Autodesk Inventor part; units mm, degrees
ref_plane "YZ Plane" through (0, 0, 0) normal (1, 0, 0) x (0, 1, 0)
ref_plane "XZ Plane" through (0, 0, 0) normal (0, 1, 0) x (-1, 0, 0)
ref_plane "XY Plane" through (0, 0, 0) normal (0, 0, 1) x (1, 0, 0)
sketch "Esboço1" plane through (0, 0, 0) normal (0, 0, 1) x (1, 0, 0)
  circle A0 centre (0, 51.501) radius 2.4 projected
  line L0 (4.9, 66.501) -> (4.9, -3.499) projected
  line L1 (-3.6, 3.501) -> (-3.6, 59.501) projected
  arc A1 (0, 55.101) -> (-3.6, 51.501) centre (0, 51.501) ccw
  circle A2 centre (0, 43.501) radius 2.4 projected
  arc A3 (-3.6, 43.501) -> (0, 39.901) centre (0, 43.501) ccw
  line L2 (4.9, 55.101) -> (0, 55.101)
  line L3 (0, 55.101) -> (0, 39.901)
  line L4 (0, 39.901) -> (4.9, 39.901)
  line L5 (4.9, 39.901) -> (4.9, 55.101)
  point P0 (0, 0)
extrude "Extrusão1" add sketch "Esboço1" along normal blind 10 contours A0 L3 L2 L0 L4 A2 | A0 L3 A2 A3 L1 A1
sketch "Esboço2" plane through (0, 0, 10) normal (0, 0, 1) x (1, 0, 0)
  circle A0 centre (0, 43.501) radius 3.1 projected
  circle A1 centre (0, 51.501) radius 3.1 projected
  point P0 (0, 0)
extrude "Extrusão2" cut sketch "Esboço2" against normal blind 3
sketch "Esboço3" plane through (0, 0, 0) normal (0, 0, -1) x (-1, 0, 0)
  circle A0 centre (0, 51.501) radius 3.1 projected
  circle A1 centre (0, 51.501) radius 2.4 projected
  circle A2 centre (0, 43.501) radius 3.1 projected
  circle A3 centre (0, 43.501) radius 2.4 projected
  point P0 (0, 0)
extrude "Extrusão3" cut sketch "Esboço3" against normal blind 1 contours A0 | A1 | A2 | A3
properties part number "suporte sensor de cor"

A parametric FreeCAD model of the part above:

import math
import FreeCAD as App
import Part
import Sketcher
Q = App.Units.Quantity

doc = App.newDocument("Part")
params = doc.addObject("Spreadsheet::Sheet", "Params")
for row, (alias, value) in enumerate([
    ("sketch1_diameter", "4.8 mm"),
    ("sketch1_radius", "3.6 mm"),
    ("sketch1_height", "8 mm"),
    ("sketch1_width", "4.9 mm"),
    ("pad1_length", "10 mm"),
    ("sketch2_diameter", "6.2 mm"),
    ("pocket1_length", "3 mm"),
    ("sketch3_diameter", "6.2 mm"),
    ("pocket2_length", "1 mm"),
], start=1):
    params.set(f"A{row}", alias)
    params.set(f"B{row}", "=" + value)
    params.setAlias(f"B{row}", alias)

body = doc.addObject("PartDesign::Body", "Body")

# Sketch on XY plane
sketch1 = doc.addObject("Sketcher::SketchObject", "Sketch")
body.addObject(sketch1)
sketch1.AttachmentSupport = (doc.XY_Plane, [""])
sketch1.MapMode = "FlatFace"
sketch1.addGeometry(Part.LineSegment(App.Vector(4.9, 55.1, 0), App.Vector(0, 55.1, 0)), False)
sketch1.addGeometry(Part.ArcOfCircle(Part.Circle(App.Vector(0, 51.5, 0), App.Vector(0, 0, 1), 3.6), math.radians(90), math.radians(180)), False)
sketch1.addGeometry(Part.LineSegment(App.Vector(-3.6, 51.5, 0), App.Vector(-3.6, 43.5, 0)), False)
sketch1.addGeometry(Part.ArcOfCircle(Part.Circle(App.Vector(0, 43.5, 0), App.Vector(0, 0, 1), 3.6), math.radians(180), math.radians(270)), False)
sketch1.addGeometry(Part.LineSegment(App.Vector(0, 39.9, 0), App.Vector(4.9, 39.9, 0)), False)
sketch1.addGeometry(Part.LineSegment(App.Vector(4.9, 39.9, 0), App.Vector(4.9, 55.1, 0)), False)
sketch1.addGeometry(Part.Circle(App.Vector(0, 51.5, 0), App.Vector(0, 0, 1), 2.4), False)
sketch1.addGeometry(Part.Circle(App.Vector(0, 43.5, 0), App.Vector(0, 0, 1), 2.4), False)
sketch1.addConstraint(Sketcher.Constraint("Tangent", 0, 2, 1, 1))
sketch1.addConstraint(Sketcher.Constraint("Tangent", 1, 2, 2, 1))
sketch1.addConstraint(Sketcher.Constraint("Tangent", 2, 2, 3, 1))
sketch1.addConstraint(Sketcher.Constraint("Tangent", 3, 2, 4, 1))
sketch1.addConstraint(Sketcher.Constraint("Coincident", 4, 2, 5, 1))
sketch1.addConstraint(Sketcher.Constraint("Coincident", 5, 2, 0, 1))
sketch1.addConstraint(Sketcher.Constraint("Horizontal", 0))
sketch1.addConstraint(Sketcher.Constraint("Vertical", 2))
sketch1.addConstraint(Sketcher.Constraint("Horizontal", 4))
sketch1.addConstraint(Sketcher.Constraint("Vertical", 5))
sketch1.addConstraint(Sketcher.Constraint("Coincident", 6, 3, 1, 3))
sketch1.addConstraint(Sketcher.Constraint("Coincident", 7, 3, 3, 3))
sketch1.addConstraint(Sketcher.Constraint("Equal", 1, 3))
sketch1.addConstraint(Sketcher.Constraint("Equal", 6, 7))
sketch1.addConstraint(Sketcher.Constraint("PointOnObject", 1, 3, -2))
sketch1.addConstraint(Sketcher.Constraint("Diameter", 6, Q("4.8 mm")))
sketch1.addConstraint(Sketcher.Constraint("Radius", 1, Q("3.6 mm")))
sketch1.addConstraint(Sketcher.Constraint("DistanceY", 2, 2, 2, 1, Q("8 mm")))
sketch1.addConstraint(Sketcher.Constraint("DistanceX", 0, 2, 0, 1, Q("4.9 mm")))
sketch1.addConstraint(Sketcher.Constraint("DistanceY", -1, 1, 1, 3, Q("51.501 mm")))
sketch1.setExpression("Constraints[15]", "Params.sketch1_diameter")
sketch1.setExpression("Constraints[16]", "Params.sketch1_radius")
sketch1.setExpression("Constraints[17]", "Params.sketch1_height")
sketch1.setExpression("Constraints[18]", "Params.sketch1_width")
pad1 = doc.addObject("PartDesign::Pad", "Pad")
body.addObject(pad1)
pad1.Profile = sketch1
pad1.setExpression("Length", "Params.pad1_length")

# Sketch on XY plane
sketch2 = doc.addObject("Sketcher::SketchObject", "Sketch001")
body.addObject(sketch2)
sketch2.AttachmentSupport = (doc.XY_Plane, [""])
sketch2.MapMode = "FlatFace"
sketch2.AttachmentOffset = App.Placement(App.Vector(0, 0, 10), App.Rotation())
sketch2.addGeometry(Part.Circle(App.Vector(0, 43.5, 0), App.Vector(0, 0, 1), 3.1), False)
sketch2.addGeometry(Part.Circle(App.Vector(0, 51.5, 0), App.Vector(0, 0, 1), 3.1), False)
sketch2.addConstraint(Sketcher.Constraint("Equal", 0, 1))
sketch2.addConstraint(Sketcher.Constraint("PointOnObject", 0, 3, -2))
sketch2.addConstraint(Sketcher.Constraint("PointOnObject", 1, 3, -2))
sketch2.addConstraint(Sketcher.Constraint("Diameter", 0, Q("6.2 mm")))
sketch2.addConstraint(Sketcher.Constraint("DistanceY", 0, 3, 1, 3, Q("8 mm")))
sketch2.addConstraint(Sketcher.Constraint("DistanceY", -1, 1, 0, 3, Q("43.501 mm")))
sketch2.setExpression("Constraints[3]", "Params.sketch2_diameter")
pocket1 = doc.addObject("PartDesign::Pocket", "Pocket")
body.addObject(pocket1)
pocket1.Profile = sketch2
pocket1.setExpression("Length", "Params.pocket1_length")

# Sketch on XY plane
sketch3 = doc.addObject("Sketcher::SketchObject", "Sketch002")
body.addObject(sketch3)
sketch3.AttachmentSupport = (doc.XY_Plane, [""])
sketch3.MapMode = "FlatFace"
sketch3.addGeometry(Part.Circle(App.Vector(0, 51.5, 0), App.Vector(0, 0, 1), 3.1), False)
sketch3.addGeometry(Part.Circle(App.Vector(0, 43.5, 0), App.Vector(0, 0, 1), 3.1), False)
sketch3.addConstraint(Sketcher.Constraint("Equal", 0, 1))
sketch3.addConstraint(Sketcher.Constraint("PointOnObject", 0, 3, -2))
sketch3.addConstraint(Sketcher.Constraint("PointOnObject", 1, 3, -2))
sketch3.addConstraint(Sketcher.Constraint("Diameter", 0, Q("6.2 mm")))
sketch3.addConstraint(Sketcher.Constraint("DistanceY", 1, 3, 0, 3, Q("8 mm")))
sketch3.addConstraint(Sketcher.Constraint("DistanceY", -1, 1, 0, 3, Q("51.501 mm")))
sketch3.setExpression("Constraints[3]", "Params.sketch3_diameter")
pocket2 = doc.addObject("PartDesign::Pocket", "Pocket001")
body.addObject(pocket2)
pocket2.Profile = sketch3
pocket2.setExpression("Length", "Params.pocket2_length")
pocket2.Reversed = True

doc.recompute()
